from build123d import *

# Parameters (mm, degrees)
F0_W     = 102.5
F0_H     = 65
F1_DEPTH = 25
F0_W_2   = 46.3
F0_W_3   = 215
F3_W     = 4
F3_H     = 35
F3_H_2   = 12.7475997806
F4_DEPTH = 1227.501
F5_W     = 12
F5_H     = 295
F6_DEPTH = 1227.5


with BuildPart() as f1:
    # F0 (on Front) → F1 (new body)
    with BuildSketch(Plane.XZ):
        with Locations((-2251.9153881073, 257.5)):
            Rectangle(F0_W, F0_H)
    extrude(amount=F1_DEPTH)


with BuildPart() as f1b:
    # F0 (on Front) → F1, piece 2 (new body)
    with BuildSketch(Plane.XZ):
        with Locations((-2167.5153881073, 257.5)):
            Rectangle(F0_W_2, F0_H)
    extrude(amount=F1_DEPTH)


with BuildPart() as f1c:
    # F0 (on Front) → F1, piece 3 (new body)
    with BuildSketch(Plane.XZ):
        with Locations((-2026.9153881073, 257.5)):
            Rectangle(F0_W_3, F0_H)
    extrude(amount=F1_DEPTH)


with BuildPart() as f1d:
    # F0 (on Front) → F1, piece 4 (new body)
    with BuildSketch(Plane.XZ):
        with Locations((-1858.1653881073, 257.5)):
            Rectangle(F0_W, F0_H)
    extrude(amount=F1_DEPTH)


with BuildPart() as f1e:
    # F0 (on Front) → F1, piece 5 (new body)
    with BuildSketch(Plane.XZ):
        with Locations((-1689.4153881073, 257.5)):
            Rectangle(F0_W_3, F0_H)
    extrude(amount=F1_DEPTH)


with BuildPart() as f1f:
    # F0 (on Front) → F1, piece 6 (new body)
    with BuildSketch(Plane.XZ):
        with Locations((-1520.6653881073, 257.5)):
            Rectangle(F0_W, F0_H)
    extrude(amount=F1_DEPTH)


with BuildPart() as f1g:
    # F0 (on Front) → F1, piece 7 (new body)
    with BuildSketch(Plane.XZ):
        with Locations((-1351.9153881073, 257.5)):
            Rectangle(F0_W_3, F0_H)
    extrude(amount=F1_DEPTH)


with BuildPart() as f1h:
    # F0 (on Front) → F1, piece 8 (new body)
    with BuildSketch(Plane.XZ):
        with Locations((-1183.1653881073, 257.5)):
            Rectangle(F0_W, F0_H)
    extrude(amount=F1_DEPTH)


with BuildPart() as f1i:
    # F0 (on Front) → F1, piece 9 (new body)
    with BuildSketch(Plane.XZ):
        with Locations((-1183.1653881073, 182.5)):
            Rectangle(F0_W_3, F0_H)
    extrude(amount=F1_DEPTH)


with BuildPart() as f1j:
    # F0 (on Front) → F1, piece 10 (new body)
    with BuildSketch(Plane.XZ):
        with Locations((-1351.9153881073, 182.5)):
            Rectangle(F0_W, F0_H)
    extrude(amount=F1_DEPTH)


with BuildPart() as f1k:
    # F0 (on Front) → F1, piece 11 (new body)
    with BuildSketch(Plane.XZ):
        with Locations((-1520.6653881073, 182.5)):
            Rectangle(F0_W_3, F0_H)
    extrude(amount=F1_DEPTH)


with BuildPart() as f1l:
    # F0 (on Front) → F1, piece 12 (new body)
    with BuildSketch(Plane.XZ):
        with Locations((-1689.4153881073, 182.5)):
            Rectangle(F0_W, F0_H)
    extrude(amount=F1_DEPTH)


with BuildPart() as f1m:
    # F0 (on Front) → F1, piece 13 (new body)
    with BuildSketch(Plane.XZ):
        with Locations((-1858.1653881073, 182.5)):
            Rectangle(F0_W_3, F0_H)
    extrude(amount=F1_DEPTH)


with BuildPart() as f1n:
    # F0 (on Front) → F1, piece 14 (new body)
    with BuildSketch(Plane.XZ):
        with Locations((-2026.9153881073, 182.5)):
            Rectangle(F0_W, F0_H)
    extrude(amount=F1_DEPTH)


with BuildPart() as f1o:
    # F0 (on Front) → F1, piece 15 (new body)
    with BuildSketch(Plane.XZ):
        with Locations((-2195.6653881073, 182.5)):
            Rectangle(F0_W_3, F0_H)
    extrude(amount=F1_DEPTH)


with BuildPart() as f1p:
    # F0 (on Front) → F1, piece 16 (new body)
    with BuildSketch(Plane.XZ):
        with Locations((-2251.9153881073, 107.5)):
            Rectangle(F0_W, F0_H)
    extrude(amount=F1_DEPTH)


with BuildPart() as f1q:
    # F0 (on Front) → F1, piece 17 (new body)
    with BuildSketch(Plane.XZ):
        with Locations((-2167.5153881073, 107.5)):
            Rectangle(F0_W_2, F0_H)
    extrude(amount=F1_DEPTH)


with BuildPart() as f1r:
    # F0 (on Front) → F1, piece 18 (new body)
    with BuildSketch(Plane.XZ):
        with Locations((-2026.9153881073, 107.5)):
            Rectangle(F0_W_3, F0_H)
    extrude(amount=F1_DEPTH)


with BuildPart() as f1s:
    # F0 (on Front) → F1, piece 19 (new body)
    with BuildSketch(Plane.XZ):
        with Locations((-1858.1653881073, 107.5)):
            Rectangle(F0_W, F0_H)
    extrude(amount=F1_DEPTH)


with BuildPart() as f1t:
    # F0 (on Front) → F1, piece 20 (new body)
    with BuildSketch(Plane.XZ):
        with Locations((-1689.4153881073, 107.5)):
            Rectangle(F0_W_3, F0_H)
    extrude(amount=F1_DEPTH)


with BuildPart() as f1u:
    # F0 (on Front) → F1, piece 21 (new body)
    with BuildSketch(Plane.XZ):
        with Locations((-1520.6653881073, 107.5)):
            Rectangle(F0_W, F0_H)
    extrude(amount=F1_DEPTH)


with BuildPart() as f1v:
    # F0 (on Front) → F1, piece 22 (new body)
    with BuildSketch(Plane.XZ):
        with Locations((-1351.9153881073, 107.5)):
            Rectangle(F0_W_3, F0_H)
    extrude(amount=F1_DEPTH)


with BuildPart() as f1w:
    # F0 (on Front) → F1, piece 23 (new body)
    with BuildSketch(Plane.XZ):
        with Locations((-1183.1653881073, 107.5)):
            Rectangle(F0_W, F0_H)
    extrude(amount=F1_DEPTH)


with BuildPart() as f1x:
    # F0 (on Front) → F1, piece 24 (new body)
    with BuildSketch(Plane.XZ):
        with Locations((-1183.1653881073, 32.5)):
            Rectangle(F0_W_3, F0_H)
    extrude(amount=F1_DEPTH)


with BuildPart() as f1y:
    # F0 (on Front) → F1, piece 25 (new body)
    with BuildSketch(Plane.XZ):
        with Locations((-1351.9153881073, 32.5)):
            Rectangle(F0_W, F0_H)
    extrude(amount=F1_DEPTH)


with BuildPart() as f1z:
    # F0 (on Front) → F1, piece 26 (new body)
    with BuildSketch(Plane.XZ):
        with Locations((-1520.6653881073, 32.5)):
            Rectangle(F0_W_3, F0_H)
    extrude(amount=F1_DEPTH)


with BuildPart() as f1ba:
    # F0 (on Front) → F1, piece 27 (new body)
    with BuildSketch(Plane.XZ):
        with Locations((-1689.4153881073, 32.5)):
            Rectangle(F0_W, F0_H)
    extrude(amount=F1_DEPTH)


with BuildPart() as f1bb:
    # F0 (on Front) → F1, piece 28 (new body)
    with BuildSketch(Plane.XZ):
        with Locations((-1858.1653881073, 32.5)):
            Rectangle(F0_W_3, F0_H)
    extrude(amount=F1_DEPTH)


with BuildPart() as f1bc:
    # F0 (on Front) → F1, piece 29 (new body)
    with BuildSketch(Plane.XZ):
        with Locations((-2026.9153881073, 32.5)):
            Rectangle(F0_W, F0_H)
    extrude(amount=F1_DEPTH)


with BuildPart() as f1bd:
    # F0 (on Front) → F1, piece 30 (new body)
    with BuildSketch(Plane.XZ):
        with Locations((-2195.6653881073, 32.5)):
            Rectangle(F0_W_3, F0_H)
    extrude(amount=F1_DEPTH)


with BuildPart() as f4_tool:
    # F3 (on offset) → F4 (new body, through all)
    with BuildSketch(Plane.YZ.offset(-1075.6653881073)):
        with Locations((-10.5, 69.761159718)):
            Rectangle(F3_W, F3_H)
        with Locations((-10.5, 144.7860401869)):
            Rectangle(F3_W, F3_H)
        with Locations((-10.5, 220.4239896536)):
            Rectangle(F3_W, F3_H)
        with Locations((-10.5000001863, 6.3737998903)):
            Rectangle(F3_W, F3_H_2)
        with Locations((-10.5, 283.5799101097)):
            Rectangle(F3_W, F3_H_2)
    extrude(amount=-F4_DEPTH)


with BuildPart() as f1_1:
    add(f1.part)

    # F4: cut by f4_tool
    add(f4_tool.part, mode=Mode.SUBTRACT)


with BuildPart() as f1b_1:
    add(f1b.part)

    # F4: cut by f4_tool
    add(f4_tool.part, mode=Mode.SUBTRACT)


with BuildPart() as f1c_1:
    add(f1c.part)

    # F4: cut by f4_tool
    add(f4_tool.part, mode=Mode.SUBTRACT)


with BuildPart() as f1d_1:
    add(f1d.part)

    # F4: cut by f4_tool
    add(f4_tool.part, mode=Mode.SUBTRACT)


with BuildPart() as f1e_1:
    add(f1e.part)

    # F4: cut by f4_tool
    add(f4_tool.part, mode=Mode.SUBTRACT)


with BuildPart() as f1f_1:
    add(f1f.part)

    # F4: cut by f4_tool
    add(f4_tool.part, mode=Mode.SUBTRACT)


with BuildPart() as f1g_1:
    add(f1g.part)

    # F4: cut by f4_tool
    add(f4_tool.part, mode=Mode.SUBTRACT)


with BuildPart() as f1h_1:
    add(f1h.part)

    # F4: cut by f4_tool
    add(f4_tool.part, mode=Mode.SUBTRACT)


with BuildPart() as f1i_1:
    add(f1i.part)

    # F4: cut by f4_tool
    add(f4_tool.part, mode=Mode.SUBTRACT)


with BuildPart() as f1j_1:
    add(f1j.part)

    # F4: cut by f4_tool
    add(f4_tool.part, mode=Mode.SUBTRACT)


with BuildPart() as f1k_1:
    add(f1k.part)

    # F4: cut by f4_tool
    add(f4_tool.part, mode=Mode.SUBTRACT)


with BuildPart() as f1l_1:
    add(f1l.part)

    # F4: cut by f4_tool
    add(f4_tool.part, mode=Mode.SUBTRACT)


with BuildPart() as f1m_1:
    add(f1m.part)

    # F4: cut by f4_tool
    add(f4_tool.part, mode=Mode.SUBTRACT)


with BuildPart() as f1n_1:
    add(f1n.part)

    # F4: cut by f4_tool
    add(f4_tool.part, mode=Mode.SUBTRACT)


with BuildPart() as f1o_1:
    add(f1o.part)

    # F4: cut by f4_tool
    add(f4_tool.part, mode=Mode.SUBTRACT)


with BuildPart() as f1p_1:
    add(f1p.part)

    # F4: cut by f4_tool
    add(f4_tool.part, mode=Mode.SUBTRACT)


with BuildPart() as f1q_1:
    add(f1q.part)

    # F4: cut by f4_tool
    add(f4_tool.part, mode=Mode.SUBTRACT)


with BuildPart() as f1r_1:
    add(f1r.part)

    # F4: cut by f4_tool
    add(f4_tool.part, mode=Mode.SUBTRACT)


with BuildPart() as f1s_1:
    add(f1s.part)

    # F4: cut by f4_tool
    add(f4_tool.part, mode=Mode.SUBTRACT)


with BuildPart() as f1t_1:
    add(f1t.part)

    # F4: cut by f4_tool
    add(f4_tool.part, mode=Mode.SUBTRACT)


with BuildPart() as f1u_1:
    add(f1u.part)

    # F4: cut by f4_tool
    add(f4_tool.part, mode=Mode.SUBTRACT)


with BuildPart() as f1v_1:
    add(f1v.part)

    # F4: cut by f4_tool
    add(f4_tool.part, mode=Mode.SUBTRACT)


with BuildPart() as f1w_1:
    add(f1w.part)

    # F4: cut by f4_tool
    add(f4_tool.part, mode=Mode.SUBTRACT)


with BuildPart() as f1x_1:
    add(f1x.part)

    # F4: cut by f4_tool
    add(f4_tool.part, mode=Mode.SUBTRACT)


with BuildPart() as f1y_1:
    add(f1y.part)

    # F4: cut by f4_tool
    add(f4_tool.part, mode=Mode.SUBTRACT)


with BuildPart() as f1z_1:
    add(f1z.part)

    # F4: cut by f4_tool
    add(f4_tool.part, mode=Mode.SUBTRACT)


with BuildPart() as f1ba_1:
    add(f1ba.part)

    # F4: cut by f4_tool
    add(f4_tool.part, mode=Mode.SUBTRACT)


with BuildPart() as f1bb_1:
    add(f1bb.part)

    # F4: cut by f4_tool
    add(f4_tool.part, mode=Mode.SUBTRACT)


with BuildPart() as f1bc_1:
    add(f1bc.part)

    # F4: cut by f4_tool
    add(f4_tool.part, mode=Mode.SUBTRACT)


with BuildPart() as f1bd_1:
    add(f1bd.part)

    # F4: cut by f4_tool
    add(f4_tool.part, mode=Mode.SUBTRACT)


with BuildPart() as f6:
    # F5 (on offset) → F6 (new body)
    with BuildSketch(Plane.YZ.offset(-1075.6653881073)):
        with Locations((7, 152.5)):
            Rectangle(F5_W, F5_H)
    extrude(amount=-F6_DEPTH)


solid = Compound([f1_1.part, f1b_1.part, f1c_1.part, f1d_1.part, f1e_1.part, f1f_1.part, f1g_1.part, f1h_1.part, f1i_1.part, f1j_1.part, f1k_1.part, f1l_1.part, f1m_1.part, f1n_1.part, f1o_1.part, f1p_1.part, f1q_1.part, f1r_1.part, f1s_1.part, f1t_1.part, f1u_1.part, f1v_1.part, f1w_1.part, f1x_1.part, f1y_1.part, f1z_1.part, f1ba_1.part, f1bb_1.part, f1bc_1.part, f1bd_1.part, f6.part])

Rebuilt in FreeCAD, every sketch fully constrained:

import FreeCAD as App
import Part
import Sketcher


def add_polygon(sketch, points):
    """Adds a closed chain of lines whose ends are joined by coincident constraints."""
    first, n = sketch.GeometryCount, len(points)
    for a, b in zip(points, points[1:] + points[:1]):
        sketch.addGeometry(Part.LineSegment(App.Vector(*a, 0), App.Vector(*b, 0)), False)
    for i in range(n):
        sketch.addConstraint(Sketcher.Constraint("Coincident", first + i, 2, first + (i + 1) % n, 1))

doc = App.newDocument("Part")
body = doc.addObject("PartDesign::Body", "Body")

# Sketch on XZ plane
sketch1 = body.newObject("Sketcher::SketchObject", "Sketch")
sketch1.AttachmentSupport = (doc.getObject("XZ_Plane"), [""])
sketch1.MapMode = "FlatFace"
add_polygon(sketch1, [(-2303, 290), (-2303, 225), (-2201, 225), (-2201, 290)])  # lines 0-3
sketch1.addConstraint([
    Sketcher.Constraint("Vertical", 0),
    Sketcher.Constraint("Horizontal", 1),
    Sketcher.Constraint("Vertical", 2),
    Sketcher.Constraint("Horizontal", 3),
    Sketcher.Constraint("DistanceY", 0, 2, 0, 1, 65.0),
    Sketcher.Constraint("DistanceX", 1, 1, 1, 2, 102.5),
    Sketcher.Constraint("DistanceY", -1, 1, 0, 2, 225.0),
    Sketcher.Constraint("DistanceX", 0, 2, -1, 1, 2303.165388),
])
pad1 = body.newObject("PartDesign::Pad", "Pad")
pad1.Profile = sketch1
pad1.Length = 25
body2 = doc.addObject("PartDesign::Body", "Body001")

# Sketch on XZ plane
sketch2 = body2.newObject("Sketcher::SketchObject", "Sketch001")
sketch2.AttachmentSupport = (doc.getObject("XZ_Plane001"), [""])
sketch2.MapMode = "FlatFace"
add_polygon(sketch2, [(-2191, 290), (-2191, 225), (-2144, 225), (-2144, 290)])  # lines 0-3
sketch2.addConstraint([
    Sketcher.Constraint("Vertical", 0),
    Sketcher.Constraint("Horizontal", 1),
    Sketcher.Constraint("Vertical", 2),
    Sketcher.Constraint("Horizontal", 3),
    Sketcher.Constraint("DistanceY", 0, 2, 0, 1, 65.0),
    Sketcher.Constraint("DistanceX", 1, 1, 1, 2, 46.3),
    Sketcher.Constraint("DistanceY", -1, 1, 0, 2, 225.0),
    Sketcher.Constraint("DistanceX", 0, 2, -1, 1, 2190.665388),
])
pad2 = body2.newObject("PartDesign::Pad", "Pad001")
pad2.Profile = sketch2
pad2.Length = 25
body3 = doc.addObject("PartDesign::Body", "Body002")

# Sketch on XZ plane
sketch3 = body3.newObject("Sketcher::SketchObject", "Sketch002")
sketch3.AttachmentSupport = (doc.getObject("XZ_Plane002"), [""])
sketch3.MapMode = "FlatFace"
add_polygon(sketch3, [(-2134, 290), (-2134, 225), (-1919, 225), (-1919, 290)])  # lines 0-3
sketch3.addConstraint([
    Sketcher.Constraint("Vertical", 0),
    Sketcher.Constraint("Horizontal", 1),
    Sketcher.Constraint("Vertical", 2),
    Sketcher.Constraint("Horizontal", 3),
    Sketcher.Constraint("DistanceX", 1, 1, 1, 2, 215.0),
    Sketcher.Constraint("DistanceY", 0, 2, 0, 1, 65.0),
    Sketcher.Constraint("DistanceY", -1, 1, 0, 2, 225.0),
    Sketcher.Constraint("DistanceX", 0, 2, -1, 1, 2134.415388),
])
pad3 = body3.newObject("PartDesign::Pad", "Pad002")
pad3.Profile = sketch3
pad3.Length = 25
body4 = doc.addObject("PartDesign::Body", "Body003")

# Sketch on XZ plane
sketch4 = body4.newObject("Sketcher::SketchObject", "Sketch003")
sketch4.AttachmentSupport = (doc.getObject("XZ_Plane003"), [""])
sketch4.MapMode = "FlatFace"
add_polygon(sketch4, [(-1909, 290), (-1909, 225), (-1807, 225), (-1807, 290)])  # lines 0-3
sketch4.addConstraint([
    Sketcher.Constraint("Vertical", 0),
    Sketcher.Constraint("Horizontal", 1),
    Sketcher.Constraint("Vertical", 2),
    Sketcher.Constraint("Horizontal", 3),
    Sketcher.Constraint("DistanceY", 0, 2, 0, 1, 65.0),
    Sketcher.Constraint("DistanceX", 1, 1, 1, 2, 102.5),
    Sketcher.Constraint("DistanceY", -1, 1, 0, 2, 225.0),
    Sketcher.Constraint("DistanceX", 0, 2, -1, 1, 1909.415388),
])
pad4 = body4.newObject("PartDesign::Pad", "Pad003")
pad4.Profile = sketch4
pad4.Length = 25
body5 = doc.addObject("PartDesign::Body", "Body004")

# Sketch on XZ plane
sketch5 = body5.newObject("Sketcher::SketchObject", "Sketch004")
sketch5.AttachmentSupport = (doc.getObject("XZ_Plane004"), [""])
sketch5.MapMode = "FlatFace"
add_polygon(sketch5, [(-1797, 290), (-1797, 225), (-1582, 225), (-1582, 290)])  # lines 0-3
sketch5.addConstraint([
    Sketcher.Constraint("Vertical", 0),
    Sketcher.Constraint("Horizontal", 1),
    Sketcher.Constraint("Vertical", 2),
    Sketcher.Constraint("Horizontal", 3),
    Sketcher.Constraint("DistanceX", 1, 1, 1, 2, 215.0),
    Sketcher.Constraint("DistanceY", 0, 2, 0, 1, 65.0),
    Sketcher.Constraint("DistanceY", -1, 1, 0, 2, 225.0),
    Sketcher.Constraint("DistanceX", 0, 2, -1, 1, 1796.915388),
])
pad5 = body5.newObject("PartDesign::Pad", "Pad004")
pad5.Profile = sketch5
pad5.Length = 25
body6 = doc.addObject("PartDesign::Body", "Body005")

# Sketch on XZ plane
sketch6 = body6.newObject("Sketcher::SketchObject", "Sketch005")
sketch6.AttachmentSupport = (doc.getObject("XZ_Plane005"), [""])
sketch6.MapMode = "FlatFace"
add_polygon(sketch6, [(-1572, 290), (-1572, 225), (-1469, 225), (-1469, 290)])  # lines 0-3
sketch6.addConstraint([
    Sketcher.Constraint("Vertical", 0),
    Sketcher.Constraint("Horizontal", 1),
    Sketcher.Constraint("Vertical", 2),
    Sketcher.Constraint("Horizontal", 3),
    Sketcher.Constraint("DistanceY", 0, 2, 0, 1, 65.0),
    Sketcher.Constraint("DistanceX", 1, 1, 1, 2, 102.5),
    Sketcher.Constraint("DistanceY", -1, 1, 0, 2, 225.0),
    Sketcher.Constraint("DistanceX", 0, 2, -1, 1, 1571.915388),
])
pad6 = body6.newObject("PartDesign::Pad", "Pad005")
pad6.Profile = sketch6
pad6.Length = 25
body7 = doc.addObject("PartDesign::Body", "Body006")

# Sketch on XZ plane
sketch7 = body7.newObject("Sketcher::SketchObject", "Sketch006")
sketch7.AttachmentSupport = (doc.getObject("XZ_Plane006"), [""])
sketch7.MapMode = "FlatFace"
add_polygon(sketch7, [(-1459, 290), (-1459, 225), (-1244, 225), (-1244, 290)])  # lines 0-3
sketch7.addConstraint([
    Sketcher.Constraint("Vertical", 0),
    Sketcher.Constraint("Horizontal", 1),
    Sketcher.Constraint("Vertical", 2),
    Sketcher.Constraint("Horizontal", 3),
    Sketcher.Constraint("DistanceX", 1, 1, 1, 2, 215.0),
    Sketcher.Constraint("DistanceY", 0, 2, 0, 1, 65.0),
    Sketcher.Constraint("DistanceY", -1, 1, 0, 2, 225.0),
    Sketcher.Constraint("DistanceX", 0, 2, -1, 1, 1459.415388),
])
pad7 = body7.newObject("PartDesign::Pad", "Pad006")
pad7.Profile = sketch7
pad7.Length = 25
body8 = doc.addObject("PartDesign::Body", "Body007")

# Sketch on XZ plane
sketch8 = body8.newObject("Sketcher::SketchObject", "Sketch007")
sketch8.AttachmentSupport = (doc.getObject("XZ_Plane007"), [""])
sketch8.MapMode = "FlatFace"
add_polygon(sketch8, [(-1234, 290), (-1234, 225), (-1132, 225), (-1132, 290)])  # lines 0-3
sketch8.addConstraint([
    Sketcher.Constraint("Vertical", 0),
    Sketcher.Constraint("Horizontal", 1),
    Sketcher.Constraint("Vertical", 2),
    Sketcher.Constraint("Horizontal", 3),
    Sketcher.Constraint("DistanceY", 0, 2, 0, 1, 65.0),
    Sketcher.Constraint("DistanceX", 1, 1, 1, 2, 102.5),
    Sketcher.Constraint("DistanceY", -1, 1, 0, 2, 225.0),
    Sketcher.Constraint("DistanceX", 0, 2, -1, 1, 1234.415388),
])
pad8 = body8.newObject("PartDesign::Pad", "Pad007")
pad8.Profile = sketch8
pad8.Length = 25
body9 = doc.addObject("PartDesign::Body", "Body008")

# Sketch on XZ plane
sketch9 = body9.newObject("Sketcher::SketchObject", "Sketch008")
sketch9.AttachmentSupport = (doc.getObject("XZ_Plane008"), [""])
sketch9.MapMode = "FlatFace"
add_polygon(sketch9, [(-1291, 215), (-1291, 150), (-1076, 150), (-1076, 215)])  # lines 0-3
sketch9.addConstraint([
    Sketcher.Constraint("Vertical", 0),
    Sketcher.Constraint("Horizontal", 1),
    Sketcher.Constraint("Vertical", 2),
    Sketcher.Constraint("Horizontal", 3),
    Sketcher.Constraint("DistanceX", 1, 1, 1, 2, 215.0),
    Sketcher.Constraint("DistanceY", 0, 2, 0, 1, 65.0),
    Sketcher.Constraint("DistanceY", -1, 1, 0, 2, 150.0),
    Sketcher.Constraint("DistanceX", 0, 2, -1, 1, 1290.665388),
])
pad9 = body9.newObject("PartDesign::Pad", "Pad008")
pad9.Profile = sketch9
pad9.Length = 25
body10 = doc.addObject("PartDesign::Body", "Body009")

# Sketch on XZ plane
sketch10 = body10.newObject("Sketcher::SketchObject", "Sketch009")
sketch10.AttachmentSupport = (doc.getObject("XZ_Plane009"), [""])
sketch10.MapMode = "FlatFace"
add_polygon(sketch10, [(-1403, 215), (-1403, 150), (-1301, 150), (-1301, 215)])  # lines 0-3
sketch10.addConstraint([
    Sketcher.Constraint("Vertical", 0),
    Sketcher.Constraint("Horizontal", 1),
    Sketcher.Constraint("Vertical", 2),
    Sketcher.Constraint("Horizontal", 3),
    Sketcher.Constraint("DistanceY", 0, 2, 0, 1, 65.0),
    Sketcher.Constraint("DistanceX", 1, 1, 1, 2, 102.5),
    Sketcher.Constraint("DistanceY", -1, 1, 0, 2, 150.0),
    Sketcher.Constraint("DistanceX", 0, 2, -1, 1, 1403.165388),
])
pad10 = body10.newObject("PartDesign::Pad", "Pad009")
pad10.Profile = sketch10
pad10.Length = 25
body11 = doc.addObject("PartDesign::Body", "Body010")

# Sketch on XZ plane
sketch11 = body11.newObject("Sketcher::SketchObject", "Sketch010")
sketch11.AttachmentSupport = (doc.getObject("XZ_Plane010"), [""])
sketch11.MapMode = "FlatFace"
add_polygon(sketch11, [(-1628, 215), (-1628, 150), (-1413, 150), (-1413, 215)])  # lines 0-3
sketch11.addConstraint([
    Sketcher.Constraint("Vertical", 0),
    Sketcher.Constraint("Horizontal", 1),
    Sketcher.Constraint("Vertical", 2),
    Sketcher.Constraint("Horizontal", 3),
    Sketcher.Constraint("DistanceX", 1, 1, 1, 2, 215.0),
    Sketcher.Constraint("DistanceY", 0, 2, 0, 1, 65.0),
    Sketcher.Constraint("DistanceY", -1, 1, 0, 2, 150.0),
    Sketcher.Constraint("DistanceX", 0, 2, -1, 1, 1628.165388),
])
pad11 = body11.newObject("PartDesign::Pad", "Pad010")
pad11.Profile = sketch11
pad11.Length = 25
body12 = doc.addObject("PartDesign::Body", "Body011")

# Sketch on XZ plane
sketch12 = body12.newObject("Sketcher::SketchObject", "Sketch011")
sketch12.AttachmentSupport = (doc.getObject("XZ_Plane011"), [""])
sketch12.MapMode = "FlatFace"
add_polygon(sketch12, [(-1741, 215), (-1741, 150), (-1638, 150), (-1638, 215)])  # lines 0-3
sketch12.addConstraint([
    Sketcher.Constraint("Vertical", 0),
    Sketcher.Constraint("Horizontal", 1),
    Sketcher.Constraint("Vertical", 2),
    Sketcher.Constraint("Horizontal", 3),
    Sketcher.Constraint("DistanceY", 0, 2, 0, 1, 65.0),
    Sketcher.Constraint("DistanceX", 1, 1, 1, 2, 102.5),
    Sketcher.Constraint("DistanceY", -1, 1, 0, 2, 150.0),
    Sketcher.Constraint("DistanceX", 0, 2, -1, 1, 1740.665388),
])
pad12 = body12.newObject("PartDesign::Pad", "Pad011")
pad12.Profile = sketch12
pad12.Length = 25
body13 = doc.addObject("PartDesign::Body", "Body012")

# Sketch on XZ plane
sketch13 = body13.newObject("Sketcher::SketchObject", "Sketch012")
sketch13.AttachmentSupport = (doc.getObject("XZ_Plane012"), [""])
sketch13.MapMode = "FlatFace"
add_polygon(sketch13, [(-1966, 215), (-1966, 150), (-1751, 150), (-1751, 215)])  # lines 0-3
sketch13.addConstraint([
    Sketcher.Constraint("Vertical", 0),
    Sketcher.Constraint("Horizontal", 1),
    Sketcher.Constraint("Vertical", 2),
    Sketcher.Constraint("Horizontal", 3),
    Sketcher.Constraint("DistanceX", 1, 1, 1, 2, 215.0),
    Sketcher.Constraint("DistanceY", 0, 2, 0, 1, 65.0),
    Sketcher.Constraint("DistanceY", -1, 1, 0, 2, 150.0),
    Sketcher.Constraint("DistanceX", 0, 2, -1, 1, 1965.665388),
])
pad13 = body13.newObject("PartDesign::Pad", "Pad012")
pad13.Profile = sketch13
pad13.Length = 25
body14 = doc.addObject("PartDesign::Body", "Body013")

# Sketch on XZ plane
sketch14 = body14.newObject("Sketcher::SketchObject", "Sketch013")
sketch14.AttachmentSupport = (doc.getObject("XZ_Plane013"), [""])
sketch14.MapMode = "FlatFace"
add_polygon(sketch14, [(-2078, 215), (-2078, 150), (-1976, 150), (-1976, 215)])  # lines 0-3
sketch14.addConstraint([
    Sketcher.Constraint("Vertical", 0),
    Sketcher.Constraint("Horizontal", 1),
    Sketcher.Constraint("Vertical", 2),
    Sketcher.Constraint("Horizontal", 3),
    Sketcher.Constraint("DistanceY", 0, 2, 0, 1, 65.0),
    Sketcher.Constraint("DistanceX", 1, 1, 1, 2, 102.5),
    Sketcher.Constraint("DistanceY", -1, 1, 0, 2, 150.0),
    Sketcher.Constraint("DistanceX", 0, 2, -1, 1, 2078.165388),
])
pad14 = body14.newObject("PartDesign::Pad", "Pad013")
pad14.Profile = sketch14
pad14.Length = 25
body15 = doc.addObject("PartDesign::Body", "Body014")

# Sketch on XZ plane
sketch15 = body15.newObject("Sketcher::SketchObject", "Sketch014")
sketch15.AttachmentSupport = (doc.getObject("XZ_Plane014"), [""])
sketch15.MapMode = "FlatFace"
add_polygon(sketch15, [(-2303, 215), (-2303, 150), (-2088, 150), (-2088, 215)])  # lines 0-3
sketch15.addConstraint([
    Sketcher.Constraint("Vertical", 0),
    Sketcher.Constraint("Horizontal", 1),
    Sketcher.Constraint("Vertical", 2),
    Sketcher.Constraint("Horizontal", 3),
    Sketcher.Constraint("DistanceX", 1, 1, 1, 2, 215.0),
    Sketcher.Constraint("DistanceY", 0, 2, 0, 1, 65.0),
    Sketcher.Constraint("DistanceY", -1, 1, 0, 2, 150.0),
    Sketcher.Constraint("DistanceX", 0, 2, -1, 1, 2303.165388),
])
pad15 = body15.newObject("PartDesign::Pad", "Pad014")
pad15.Profile = sketch15
pad15.Length = 25
body16 = doc.addObject("PartDesign::Body", "Body015")

# Sketch on XZ plane
sketch16 = body16.newObject("Sketcher::SketchObject", "Sketch015")
sketch16.AttachmentSupport = (doc.getObject("XZ_Plane015"), [""])
sketch16.MapMode = "FlatFace"
add_polygon(sketch16, [(-2303, 140), (-2303, 75), (-2201, 75), (-2201, 140)])  # lines 0-3
sketch16.addConstraint([
    Sketcher.Constraint("Vertical", 0),
    Sketcher.Constraint("Horizontal", 1),
    Sketcher.Constraint("Vertical", 2),
    Sketcher.Constraint("Horizontal", 3),
    Sketcher.Constraint("DistanceY", 0, 2, 0, 1, 65.0),
    Sketcher.Constraint("DistanceX", 1, 1, 1, 2, 102.5),
    Sketcher.Constraint("DistanceY", -1, 1, 0, 2, 75.0),
    Sketcher.Constraint("DistanceX", 0, 2, -1, 1, 2303.165388),
])
pad16 = body16.newObject("PartDesign::Pad", "Pad015")
pad16.Profile = sketch16
pad16.Length = 25
body17 = doc.addObject("PartDesign::Body", "Body016")

# Sketch on XZ plane
sketch17 = body17.newObject("Sketcher::SketchObject", "Sketch016")
sketch17.AttachmentSupport = (doc.getObject("XZ_Plane016"), [""])
sketch17.MapMode = "FlatFace"
add_polygon(sketch17, [(-2191, 140), (-2191, 75), (-2144, 75), (-2144, 140)])  # lines 0-3
sketch17.addConstraint([
    Sketcher.Constraint("Vertical", 0),
    Sketcher.Constraint("Horizontal", 1),
    Sketcher.Constraint("Vertical", 2),
    Sketcher.Constraint("Horizontal", 3),
    Sketcher.Constraint("DistanceY", 0, 2, 0, 1, 65.0),
    Sketcher.Constraint("DistanceX", 1, 1, 1, 2, 46.3),
    Sketcher.Constraint("DistanceY", -1, 1, 0, 2, 75.0),
    Sketcher.Constraint("DistanceX", 0, 2, -1, 1, 2190.665388),
])
pad17 = body17.newObject("PartDesign::Pad", "Pad016")
pad17.Profile = sketch17
pad17.Length = 25
body18 = doc.addObject("PartDesign::Body", "Body017")

# Sketch on XZ plane
sketch18 = body18.newObject("Sketcher::SketchObject", "Sketch017")
sketch18.AttachmentSupport = (doc.getObject("XZ_Plane017"), [""])
sketch18.MapMode = "FlatFace"
add_polygon(sketch18, [(-2134, 140), (-2134, 75), (-1919, 75), (-1919, 140)])  # lines 0-3
sketch18.addConstraint([
    Sketcher.Constraint("Vertical", 0),
    Sketcher.Constraint("Horizontal", 1),
    Sketcher.Constraint("Vertical", 2),
    Sketcher.Constraint("Horizontal", 3),
    Sketcher.Constraint("DistanceX", 1, 1, 1, 2, 215.0),
    Sketcher.Constraint("DistanceY", 0, 2, 0, 1, 65.0),
    Sketcher.Constraint("DistanceY", -1, 1, 0, 2, 75.0),
    Sketcher.Constraint("DistanceX", 0, 2, -1, 1, 2134.415388),
])
pad18 = body18.newObject("PartDesign::Pad", "Pad017")
pad18.Profile = sketch18
pad18.Length = 25
body19 = doc.addObject("PartDesign::Body", "Body018")

# Sketch on XZ plane
sketch19 = body19.newObject("Sketcher::SketchObject", "Sketch018")
sketch19.AttachmentSupport = (doc.getObject("XZ_Plane018"), [""])
sketch19.MapMode = "FlatFace"
add_polygon(sketch19, [(-1909, 140), (-1909, 75), (-1807, 75), (-1807, 140)])  # lines 0-3
sketch19.addConstraint([
    Sketcher.Constraint("Vertical", 0),
    Sketcher.Constraint("Horizontal", 1),
    Sketcher.Constraint("Vertical", 2),
    Sketcher.Constraint("Horizontal", 3),
    Sketcher.Constraint("DistanceY", 0, 2, 0, 1, 65.0),
    Sketcher.Constraint("DistanceX", 1, 1, 1, 2, 102.5),
    Sketcher.Constraint("DistanceY", -1, 1, 0, 2, 75.0),
    Sketcher.Constraint("DistanceX", 0, 2, -1, 1, 1909.415388),
])
pad19 = body19.newObject("PartDesign::Pad", "Pad018")
pad19.Profile = sketch19
pad19.Length = 25
body20 = doc.addObject("PartDesign::Body", "Body019")

# Sketch on XZ plane
sketch20 = body20.newObject("Sketcher::SketchObject", "Sketch019")
sketch20.AttachmentSupport = (doc.getObject("XZ_Plane019"), [""])
sketch20.MapMode = "FlatFace"
add_polygon(sketch20, [(-1797, 140), (-1797, 75), (-1582, 75), (-1582, 140)])  # lines 0-3
sketch20.addConstraint([
    Sketcher.Constraint("Vertical", 0),
    Sketcher.Constraint("Horizontal", 1),
    Sketcher.Constraint("Vertical", 2),
    Sketcher.Constraint("Horizontal", 3),
    Sketcher.Constraint("DistanceX", 1, 1, 1, 2, 215.0),
    Sketcher.Constraint("DistanceY", 0, 2, 0, 1, 65.0),
    Sketcher.Constraint("DistanceY", -1, 1, 0, 2, 75.0),
    Sketcher.Constraint("DistanceX", 0, 2, -1, 1, 1796.915388),
])
pad20 = body20.newObject("PartDesign::Pad", "Pad019")
pad20.Profile = sketch20
pad20.Length = 25
body21 = doc.addObject("PartDesign::Body", "Body020")

# Sketch on XZ plane
sketch21 = body21.newObject("Sketcher::SketchObject", "Sketch020")
sketch21.AttachmentSupport = (doc.getObject("XZ_Plane020"), [""])
sketch21.MapMode = "FlatFace"
add_polygon(sketch21, [(-1572, 140), (-1572, 75), (-1469, 75), (-1469, 140)])  # lines 0-3
sketch21.addConstraint([
    Sketcher.Constraint("Vertical", 0),
    Sketcher.Constraint("Horizontal", 1),
    Sketcher.Constraint("Vertical", 2),
    Sketcher.Constraint("Horizontal", 3),
    Sketcher.Constraint("DistanceY", 0, 2, 0, 1, 65.0),
    Sketcher.Constraint("DistanceX", 1, 1, 1, 2, 102.5),
    Sketcher.Constraint("DistanceY", -1, 1, 0, 2, 75.0),
    Sketcher.Constraint("DistanceX", 0, 2, -1, 1, 1571.915388),
])
pad21 = body21.newObject("PartDesign::Pad", "Pad020")
pad21.Profile = sketch21
pad21.Length = 25
body22 = doc.addObject("PartDesign::Body", "Body021")

# Sketch on XZ plane
sketch22 = body22.newObject("Sketcher::SketchObject", "Sketch021")
sketch22.AttachmentSupport = (doc.getObject("XZ_Plane021"), [""])
sketch22.MapMode = "FlatFace"
add_polygon(sketch22, [(-1459, 140), (-1459, 75), (-1244, 75), (-1244, 140)])  # lines 0-3
sketch22.addConstraint([
    Sketcher.Constraint("Vertical", 0),
    Sketcher.Constraint("Horizontal", 1),
    Sketcher.Constraint("Vertical", 2),
    Sketcher.Constraint("Horizontal", 3),
    Sketcher.Constraint("DistanceX", 1, 1, 1, 2, 215.0),
    Sketcher.Constraint("DistanceY", 0, 2, 0, 1, 65.0),
    Sketcher.Constraint("DistanceY", -1, 1, 0, 2, 75.0),
    Sketcher.Constraint("DistanceX", 0, 2, -1, 1, 1459.415388),
])
pad22 = body22.newObject("PartDesign::Pad", "Pad021")
pad22.Profile = sketch22
pad22.Length = 25
body23 = doc.addObject("PartDesign::Body", "Body022")

# Sketch on XZ plane
sketch23 = body23.newObject("Sketcher::SketchObject", "Sketch022")
sketch23.AttachmentSupport = (doc.getObject("XZ_Plane022"), [""])
sketch23.MapMode = "FlatFace"
add_polygon(sketch23, [(-1234, 140), (-1234, 75), (-1132, 75), (-1132, 140)])  # lines 0-3
sketch23.addConstraint([
    Sketcher.Constraint("Vertical", 0),
    Sketcher.Constraint("Horizontal", 1),
    Sketcher.Constraint("Vertical", 2),
    Sketcher.Constraint("Horizontal", 3),
    Sketcher.Constraint("DistanceY", 0, 2, 0, 1, 65.0),
    Sketcher.Constraint("DistanceX", 1, 1, 1, 2, 102.5),
    Sketcher.Constraint("DistanceY", -1, 1, 0, 2, 75.0),
    Sketcher.Constraint("DistanceX", 0, 2, -1, 1, 1234.415388),
])
pad23 = body23.newObject("PartDesign::Pad", "Pad022")
pad23.Profile = sketch23
pad23.Length = 25
body24 = doc.addObject("PartDesign::Body", "Body023")

# Sketch on XZ plane
sketch24 = body24.newObject("Sketcher::SketchObject", "Sketch023")
sketch24.AttachmentSupport = (doc.getObject("XZ_Plane023"), [""])
sketch24.MapMode = "FlatFace"
add_polygon(sketch24, [(-1291, 65), (-1291, 0), (-1076, 0), (-1076, 65)])  # lines 0-3
sketch24.addConstraint([
    Sketcher.Constraint("Vertical", 0),
    Sketcher.Constraint("Horizontal", 1),
    Sketcher.Constraint("Vertical", 2),
    Sketcher.Constraint("Horizontal", 3),
    Sketcher.Constraint("PointOnObject", 0, 2, -1),
    Sketcher.Constraint("DistanceX", 1, 1, 1, 2, 215.0),
    Sketcher.Constraint("DistanceY", 0, 2, 0, 1, 65.0),
    Sketcher.Constraint("DistanceX", 0, 2, -1, 1, 1290.665388),
])
pad24 = body24.newObject("PartDesign::Pad", "Pad023")
pad24.Profile = sketch24
pad24.Length = 25
body25 = doc.addObject("PartDesign::Body", "Body024")

# Sketch on XZ plane
sketch25 = body25.newObject("Sketcher::SketchObject", "Sketch024")
sketch25.AttachmentSupport = (doc.getObject("XZ_Plane024"), [""])
sketch25.MapMode = "FlatFace"
add_polygon(sketch25, [(-1403, 65), (-1403, 0), (-1301, 0), (-1301, 65)])  # lines 0-3
sketch25.addConstraint([
    Sketcher.Constraint("Vertical", 0),
    Sketcher.Constraint("Horizontal", 1),
    Sketcher.Constraint("Vertical", 2),
    Sketcher.Constraint("Horizontal", 3),
    Sketcher.Constraint("PointOnObject", 0, 2, -1),
    Sketcher.Constraint("DistanceY", 0, 2, 0, 1, 65.0),
    Sketcher.Constraint("DistanceX", 1, 1, 1, 2, 102.5),
    Sketcher.Constraint("DistanceX", 0, 2, -1, 1, 1403.165388),
])
pad25 = body25.newObject("PartDesign::Pad", "Pad024")
pad25.Profile = sketch25
pad25.Length = 25
body26 = doc.addObject("PartDesign::Body", "Body025")

# Sketch on XZ plane
sketch26 = body26.newObject("Sketcher::SketchObject", "Sketch025")
sketch26.AttachmentSupport = (doc.getObject("XZ_Plane025"), [""])
sketch26.MapMode = "FlatFace"
add_polygon(sketch26, [(-1628, 65), (-1628, 0), (-1413, 0), (-1413, 65)])  # lines 0-3
sketch26.addConstraint([
    Sketcher.Constraint("Vertical", 0),
    Sketcher.Constraint("Horizontal", 1),
    Sketcher.Constraint("Vertical", 2),
    Sketcher.Constraint("Horizontal", 3),
    Sketcher.Constraint("PointOnObject", 0, 2, -1),
    Sketcher.Constraint("DistanceX", 1, 1, 1, 2, 215.0),
    Sketcher.Constraint("DistanceY", 0, 2, 0, 1, 65.0),
    Sketcher.Constraint("DistanceX", 0, 2, -1, 1, 1628.165388),
])
pad26 = body26.newObject("PartDesign::Pad", "Pad025")
pad26.Profile = sketch26
pad26.Length = 25
body27 = doc.addObject("PartDesign::Body", "Body026")

# Sketch on XZ plane
sketch27 = body27.newObject("Sketcher::SketchObject", "Sketch026")
sketch27.AttachmentSupport = (doc.getObject("XZ_Plane026"), [""])
sketch27.MapMode = "FlatFace"
add_polygon(sketch27, [(-1741, 65), (-1741, 0), (-1638, 0), (-1638, 65)])  # lines 0-3
sketch27.addConstraint([
    Sketcher.Constraint("Vertical", 0),
    Sketcher.Constraint("Horizontal", 1),
    Sketcher.Constraint("Vertical", 2),
    Sketcher.Constraint("Horizontal", 3),
    Sketcher.Constraint("PointOnObject", 0, 2, -1),
    Sketcher.Constraint("DistanceY", 0, 2, 0, 1, 65.0),
    Sketcher.Constraint("DistanceX", 1, 1, 1, 2, 102.5),
    Sketcher.Constraint("DistanceX", 0, 2, -1, 1, 1740.665388),
])
pad27 = body27.newObject("PartDesign::Pad", "Pad026")
pad27.Profile = sketch27
pad27.Length = 25
body28 = doc.addObject("PartDesign::Body", "Body027")

# Sketch on XZ plane
sketch28 = body28.newObject("Sketcher::SketchObject", "Sketch027")
sketch28.AttachmentSupport = (doc.getObject("XZ_Plane027"), [""])
sketch28.MapMode = "FlatFace"
add_polygon(sketch28, [(-1966, 65), (-1966, 0), (-1751, 0), (-1751, 65)])  # lines 0-3
sketch28.addConstraint([
    Sketcher.Constraint("Vertical", 0),
    Sketcher.Constraint("Horizontal", 1),
    Sketcher.Constraint("Vertical", 2),
    Sketcher.Constraint("Horizontal", 3),
    Sketcher.Constraint("PointOnObject", 0, 2, -1),
    Sketcher.Constraint("DistanceX", 1, 1, 1, 2, 215.0),
    Sketcher.Constraint("DistanceY", 0, 2, 0, 1, 65.0),
    Sketcher.Constraint("DistanceX", 0, 2, -1, 1, 1965.665388),
])
pad28 = body28.newObject("PartDesign::Pad", "Pad027")
pad28.Profile = sketch28
pad28.Length = 25
body29 = doc.addObject("PartDesign::Body", "Body028")

# Sketch on XZ plane
sketch29 = body29.newObject("Sketcher::SketchObject", "Sketch028")
sketch29.AttachmentSupport = (doc.getObject("XZ_Plane028"), [""])
sketch29.MapMode = "FlatFace"
add_polygon(sketch29, [(-2078, 65), (-2078, 0), (-1976, 0), (-1976, 65)])  # lines 0-3
sketch29.addConstraint([
    Sketcher.Constraint("Vertical", 0),
    Sketcher.Constraint("Horizontal", 1),
    Sketcher.Constraint("Vertical", 2),
    Sketcher.Constraint("Horizontal", 3),
    Sketcher.Constraint("PointOnObject", 0, 2, -1),
    Sketcher.Constraint("DistanceY", 0, 2, 0, 1, 65.0),
    Sketcher.Constraint("DistanceX", 1, 1, 1, 2, 102.5),
    Sketcher.Constraint("DistanceX", 0, 2, -1, 1, 2078.165388),
])
pad29 = body29.newObject("PartDesign::Pad", "Pad028")
pad29.Profile = sketch29
pad29.Length = 25
body30 = doc.addObject("PartDesign::Body", "Body029")

# Sketch on XZ plane
sketch30 = body30.newObject("Sketcher::SketchObject", "Sketch029")
sketch30.AttachmentSupport = (doc.getObject("XZ_Plane029"), [""])
sketch30.MapMode = "FlatFace"
add_polygon(sketch30, [(-2303, 65), (-2303, 0), (-2088, 0), (-2088, 65)])  # lines 0-3
sketch30.addConstraint([
    Sketcher.Constraint("Vertical", 0),
    Sketcher.Constraint("Horizontal", 1),
    Sketcher.Constraint("Vertical", 2),
    Sketcher.Constraint("Horizontal", 3),
    Sketcher.Constraint("PointOnObject", 0, 2, -1),
    Sketcher.Constraint("DistanceX", 1, 1, 1, 2, 215.0),
    Sketcher.Constraint("DistanceY", 0, 2, 0, 1, 65.0),
    Sketcher.Constraint("DistanceX", 0, 2, -1, 1, 2303.165388),
])
pad30 = body30.newObject("PartDesign::Pad", "Pad029")
pad30.Profile = sketch30
pad30.Length = 25
body31 = doc.addObject("PartDesign::Body", "Body030")
body31.AllowCompound = True

# Sketch on YZ plane
sketch31 = body31.newObject("Sketcher::SketchObject", "Sketch030")
sketch31.AttachmentSupport = (doc.getObject("YZ_Plane030"), [""])
sketch31.MapMode = "FlatFace"
sketch31.AttachmentOffset = App.Placement(App.Vector(0, 0, -1075.665388), App.Rotation())
add_polygon(sketch31, [(-12.5, 87.3), (-12.5, 52.3), (-8.5, 52.3), (-8.5, 87.3)])  # lines 0-3
add_polygon(sketch31, [(-12.5, 162.3), (-12.5, 127.3), (-8.5, 127.3), (-8.5, 162.3)])  # lines 4-7
add_polygon(sketch31, [(-12.5, 237.9), (-12.5, 202.9), (-8.5, 202.9), (-8.5, 237.9)])  # lines 8-11
add_polygon(sketch31, [(-12.5, 12.7), (-12.5, 0), (-8.5, 0), (-8.5, 12.7)])  # lines 12-15
add_polygon(sketch31, [(-12.5, 290), (-12.5, 277.2), (-8.5, 277.2), (-8.5, 290)])  # lines 16-19
sketch31.addConstraint([
    Sketcher.Constraint("Vertical", 0),
    Sketcher.Constraint("Horizontal", 1),
    Sketcher.Constraint("Vertical", 2),
    Sketcher.Constraint("Horizontal", 3),
    Sketcher.Constraint("Vertical", 4),
    Sketcher.Constraint("Horizontal", 5),
    Sketcher.Constraint("Vertical", 6),
    Sketcher.Constraint("Horizontal", 7),
    Sketcher.Constraint("Vertical", 8),
    Sketcher.Constraint("Horizontal", 9),
    Sketcher.Constraint("Vertical", 10),
    Sketcher.Constraint("Horizontal", 11),
    Sketcher.Constraint("Vertical", 12),
    Sketcher.Constraint("Horizontal", 13),
    Sketcher.Constraint("Vertical", 14),
    Sketcher.Constraint("Horizontal", 15),
    Sketcher.Constraint("Vertical", 16),
    Sketcher.Constraint("Horizontal", 17),
    Sketcher.Constraint("Vertical", 18),
    Sketcher.Constraint("Horizontal", 19),
    Sketcher.Constraint("PointOnObject", 12, 2, -1),
    Sketcher.Constraint("Vertical", 3, 2, 4, 2),
    Sketcher.Constraint("Vertical", 2, 2, 5, 2),
    Sketcher.Constraint("Vertical", 7, 2, 8, 2),
    Sketcher.Constraint("Vertical", 6, 2, 9, 2),
    Sketcher.Constraint("Vertical", 11, 2, 12, 2),
    Sketcher.Constraint("Vertical", 10, 2, 13, 2),
    Sketcher.Constraint("Vertical", 15, 2, 16, 2),
    Sketcher.Constraint("Vertical", 14, 2, 17, 2),
    Sketcher.Constraint("Equal", 2, 4),
    Sketcher.Constraint("Equal", 6, 8),
    Sketcher.Constraint("Equal", 14, 16),
    Sketcher.Constraint("DistanceX", 1, 1, 1, 2, 4.0),
    Sketcher.Constraint("DistanceY", 0, 2, 0, 1, 35.0),
    Sketcher.Constraint("DistanceX", 0, 2, -1, 1, 12.5),
    Sketcher.Constraint("DistanceY", 12, 2, 12, 1, 12.7476),
    Sketcher.Constraint("DistanceY", -1, 1, 0, 2, 52.26116),
    Sketcher.Constraint("DistanceY", -1, 1, 4, 2, 127.28604),
    Sketcher.Constraint("DistanceY", -1, 1, 8, 2, 202.92399),
    Sketcher.Constraint("DistanceY", -1, 1, 16, 2, 277.20611),
])
pad31 = body31.newObject("PartDesign::Pad", "Pad030")
pad31.Profile = sketch31
pad31.Length = 1227.501
pad31.Reversed = True
doc.recompute()

body32 = doc.addObject("PartDesign::Body", "Body031")
body32.BaseFeature = body31
boolean = body.newObject("PartDesign::Boolean", "Boolean")
boolean.Type = "Cut"
boolean.addObjects([body32])
doc.recompute()

body33 = doc.addObject("PartDesign::Body", "Body032")
body33.BaseFeature = body31
boolean2 = body2.newObject("PartDesign::Boolean", "Boolean001")
boolean2.Type = "Cut"
boolean2.addObjects([body33])
doc.recompute()

body34 = doc.addObject("PartDesign::Body", "Body033")
body34.BaseFeature = body31
boolean3 = body3.newObject("PartDesign::Boolean", "Boolean002")
boolean3.Type = "Cut"
boolean3.addObjects([body34])
doc.recompute()

body35 = doc.addObject("PartDesign::Body", "Body034")
body35.BaseFeature = body31
boolean4 = body4.newObject("PartDesign::Boolean", "Boolean003")
boolean4.Type = "Cut"
boolean4.addObjects([body35])
doc.recompute()

body36 = doc.addObject("PartDesign::Body", "Body035")
body36.BaseFeature = body31
boolean5 = body5.newObject("PartDesign::Boolean", "Boolean004")
boolean5.Type = "Cut"
boolean5.addObjects([body36])
doc.recompute()

body37 = doc.addObject("PartDesign::Body", "Body036")
body37.BaseFeature = body31
boolean6 = body6.newObject("PartDesign::Boolean", "Boolean005")
boolean6.Type = "Cut"
boolean6.addObjects([body37])
doc.recompute()

body38 = doc.addObject("PartDesign::Body", "Body037")
body38.BaseFeature = body31
boolean7 = body7.newObject("PartDesign::Boolean", "Boolean006")
boolean7.Type = "Cut"
boolean7.addObjects([body38])
doc.recompute()

body39 = doc.addObject("PartDesign::Body", "Body038")
body39.BaseFeature = body31
boolean8 = body8.newObject("PartDesign::Boolean", "Boolean007")
boolean8.Type = "Cut"
boolean8.addObjects([body39])
doc.recompute()

body40 = doc.addObject("PartDesign::Body", "Body039")
body40.BaseFeature = body31
boolean9 = body9.newObject("PartDesign::Boolean", "Boolean008")
boolean9.Type = "Cut"
boolean9.addObjects([body40])
doc.recompute()

body41 = doc.addObject("PartDesign::Body", "Body040")
body41.BaseFeature = body31
boolean10 = body10.newObject("PartDesign::Boolean", "Boolean009")
boolean10.Type = "Cut"
boolean10.addObjects([body41])
doc.recompute()

body42 = doc.addObject("PartDesign::Body", "Body041")
body42.BaseFeature = body31
boolean11 = body11.newObject("PartDesign::Boolean", "Boolean010")
boolean11.Type = "Cut"
boolean11.addObjects([body42])
doc.recompute()

body43 = doc.addObject("PartDesign::Body", "Body042")
body43.BaseFeature = body31
boolean12 = body12.newObject("PartDesign::Boolean", "Boolean011")
boolean12.Type = "Cut"
boolean12.addObjects([body43])
doc.recompute()

body44 = doc.addObject("PartDesign::Body", "Body043")
body44.BaseFeature = body31
boolean13 = body13.newObject("PartDesign::Boolean", "Boolean012")
boolean13.Type = "Cut"
boolean13.addObjects([body44])
doc.recompute()

body45 = doc.addObject("PartDesign::Body", "Body044")
body45.BaseFeature = body31
boolean14 = body14.newObject("PartDesign::Boolean", "Boolean013")
boolean14.Type = "Cut"
boolean14.addObjects([body45])
doc.recompute()

body46 = doc.addObject("PartDesign::Body", "Body045")
body46.BaseFeature = body31
boolean15 = body15.newObject("PartDesign::Boolean", "Boolean014")
boolean15.Type = "Cut"
boolean15.addObjects([body46])
doc.recompute()

body47 = doc.addObject("PartDesign::Body", "Body046")
body47.BaseFeature = body31
boolean16 = body16.newObject("PartDesign::Boolean", "Boolean015")
boolean16.Type = "Cut"
boolean16.addObjects([body47])
doc.recompute()

body48 = doc.addObject("PartDesign::Body", "Body047")
body48.BaseFeature = body31
boolean17 = body17.newObject("PartDesign::Boolean", "Boolean016")
boolean17.Type = "Cut"
boolean17.addObjects([body48])
doc.recompute()

body49 = doc.addObject("PartDesign::Body", "Body048")
body49.BaseFeature = body31
boolean18 = body18.newObject("PartDesign::Boolean", "Boolean017")
boolean18.Type = "Cut"
boolean18.addObjects([body49])
doc.recompute()

body50 = doc.addObject("PartDesign::Body", "Body049")
body50.BaseFeature = body31
boolean19 = body19.newObject("PartDesign::Boolean", "Boolean018")
boolean19.Type = "Cut"
boolean19.addObjects([body50])
doc.recompute()

body51 = doc.addObject("PartDesign::Body", "Body050")
body51.BaseFeature = body31
boolean20 = body20.newObject("PartDesign::Boolean", "Boolean019")
boolean20.Type = "Cut"
boolean20.addObjects([body51])
doc.recompute()

body52 = doc.addObject("PartDesign::Body", "Body051")
body52.BaseFeature = body31
boolean21 = body21.newObject("PartDesign::Boolean", "Boolean020")
boolean21.Type = "Cut"
boolean21.addObjects([body52])
doc.recompute()

body53 = doc.addObject("PartDesign::Body", "Body052")
body53.BaseFeature = body31
boolean22 = body22.newObject("PartDesign::Boolean", "Boolean021")
boolean22.Type = "Cut"
boolean22.addObjects([body53])
doc.recompute()

body54 = doc.addObject("PartDesign::Body", "Body053")
body54.BaseFeature = body31
boolean23 = body23.newObject("PartDesign::Boolean", "Boolean022")
boolean23.Type = "Cut"
boolean23.addObjects([body54])
doc.recompute()

body55 = doc.addObject("PartDesign::Body", "Body054")
body55.BaseFeature = body31
boolean24 = body24.newObject("PartDesign::Boolean", "Boolean023")
boolean24.Type = "Cut"
boolean24.addObjects([body55])
doc.recompute()

body56 = doc.addObject("PartDesign::Body", "Body055")
body56.BaseFeature = body31
boolean25 = body25.newObject("PartDesign::Boolean", "Boolean024")
boolean25.Type = "Cut"
boolean25.addObjects([body56])
doc.recompute()

body57 = doc.addObject("PartDesign::Body", "Body056")
body57.BaseFeature = body31
boolean26 = body26.newObject("PartDesign::Boolean", "Boolean025")
boolean26.Type = "Cut"
boolean26.addObjects([body57])
doc.recompute()

body58 = doc.addObject("PartDesign::Body", "Body057")
body58.BaseFeature = body31
boolean27 = body27.newObject("PartDesign::Boolean", "Boolean026")
boolean27.Type = "Cut"
boolean27.addObjects([body58])
doc.recompute()

body59 = doc.addObject("PartDesign::Body", "Body058")
body59.BaseFeature = body31
boolean28 = body28.newObject("PartDesign::Boolean", "Boolean027")
boolean28.Type = "Cut"
boolean28.addObjects([body59])
doc.recompute()

body60 = doc.addObject("PartDesign::Body", "Body059")
body60.BaseFeature = body31
boolean29 = body29.newObject("PartDesign::Boolean", "Boolean028")
boolean29.Type = "Cut"
boolean29.addObjects([body60])
doc.recompute()

boolean30 = body30.newObject("PartDesign::Boolean", "Boolean029")
boolean30.Type = "Cut"
boolean30.addObjects([body31])
body61 = doc.addObject("PartDesign::Body", "Body060")

# Sketch on YZ plane
sketch32 = body61.newObject("Sketcher::SketchObject", "Sketch031")
sketch32.AttachmentSupport = (doc.getObject("YZ_Plane060"), [""])
sketch32.MapMode = "FlatFace"
sketch32.AttachmentOffset = App.Placement(App.Vector(0, 0, -1075.665388), App.Rotation())
add_polygon(sketch32, [(1, 300), (1, 5), (13, 5), (13, 300)])  # lines 0-3
sketch32.addConstraint([
    Sketcher.Constraint("Vertical", 0),
    Sketcher.Constraint("Horizontal", 1),
    Sketcher.Constraint("Vertical", 2),
    Sketcher.Constraint("Horizontal", 3),
    Sketcher.Constraint("DistanceX", 1, 1, 1, 2, 12.0),
    Sketcher.Constraint("DistanceY", 0, 2, 0, 1, 295.0),
    Sketcher.Constraint("DistanceX", -1, 1, 0, 2, 1.0),
    Sketcher.Constraint("DistanceY", -1, 1, 0, 2, 5.0),
])
pad32 = body61.newObject("PartDesign::Pad", "Pad031")
pad32.Profile = sketch32
pad32.Length = 1227.5
pad32.Reversed = True

doc.recompute()
